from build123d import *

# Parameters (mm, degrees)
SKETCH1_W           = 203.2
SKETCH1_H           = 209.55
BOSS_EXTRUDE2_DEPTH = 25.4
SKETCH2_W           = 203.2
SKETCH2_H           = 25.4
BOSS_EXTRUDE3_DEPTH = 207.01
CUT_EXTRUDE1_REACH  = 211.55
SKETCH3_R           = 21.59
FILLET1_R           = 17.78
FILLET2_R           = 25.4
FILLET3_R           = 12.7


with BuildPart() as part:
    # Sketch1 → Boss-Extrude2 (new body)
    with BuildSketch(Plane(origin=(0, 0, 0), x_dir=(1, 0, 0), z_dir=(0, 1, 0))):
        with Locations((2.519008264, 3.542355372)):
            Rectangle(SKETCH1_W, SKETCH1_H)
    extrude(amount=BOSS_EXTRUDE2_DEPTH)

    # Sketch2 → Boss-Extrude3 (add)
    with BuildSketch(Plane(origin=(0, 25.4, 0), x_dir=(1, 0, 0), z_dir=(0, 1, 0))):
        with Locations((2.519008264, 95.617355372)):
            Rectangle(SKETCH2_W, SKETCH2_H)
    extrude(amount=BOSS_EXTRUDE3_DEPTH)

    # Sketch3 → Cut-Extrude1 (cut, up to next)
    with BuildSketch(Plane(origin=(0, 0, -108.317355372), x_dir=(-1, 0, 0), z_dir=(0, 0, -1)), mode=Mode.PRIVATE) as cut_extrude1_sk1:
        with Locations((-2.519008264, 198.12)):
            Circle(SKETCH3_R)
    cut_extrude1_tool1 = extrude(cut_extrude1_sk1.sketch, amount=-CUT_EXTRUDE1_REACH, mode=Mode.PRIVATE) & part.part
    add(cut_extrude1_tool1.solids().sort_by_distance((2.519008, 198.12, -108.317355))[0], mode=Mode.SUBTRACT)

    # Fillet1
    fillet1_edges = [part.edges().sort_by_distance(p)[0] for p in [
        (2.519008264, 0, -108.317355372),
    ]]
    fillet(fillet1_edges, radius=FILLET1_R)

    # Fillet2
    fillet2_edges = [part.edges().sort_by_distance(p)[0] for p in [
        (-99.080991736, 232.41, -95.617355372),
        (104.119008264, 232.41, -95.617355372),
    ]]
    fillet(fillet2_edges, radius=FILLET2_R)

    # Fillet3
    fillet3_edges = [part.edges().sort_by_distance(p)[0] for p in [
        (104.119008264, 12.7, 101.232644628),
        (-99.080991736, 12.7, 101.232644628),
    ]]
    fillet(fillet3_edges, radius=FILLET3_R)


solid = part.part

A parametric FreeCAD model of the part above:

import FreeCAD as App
import Part
import Sketcher

V = App.Vector
Q = App.Units.Quantity


def edges_at(feature, points):
    """Names of the edges that pass closest to the given points."""
    edges = feature.Shape.Edges
    near = lambda p: min(range(len(edges)), key=lambda i: edges[i].distToShape(Part.Vertex(*p))[0])
    return sorted({f"Edge{near(p) + 1}" for p in points})

doc = App.newDocument("Part")
body = doc.addObject("PartDesign::Body", "Body")

sketch1 = body.newObject("Sketcher::SketchObject", "Sketch")
sketch1.AttachmentSupport = (doc.getObject("XZ_Plane"), [""])
sketch1.MapMode = "FlatFace"
sketch1.addGeometry(Part.LineSegment(V(-99.080992, -108.317355, 0), V(-99.080992, 101.232645, 0)), False)
sketch1.addGeometry(Part.LineSegment(V(-99.080992, 101.232645, 0), V(104.119008, 101.232645, 0)), False)
sketch1.addGeometry(Part.LineSegment(V(104.119008, 101.232645, 0), V(104.119008, -108.317355, 0)), False)
sketch1.addGeometry(Part.LineSegment(V(104.119008, -108.317355, 0), V(-99.080992, -108.317355, 0)), False)
sketch1.addConstraint(Sketcher.Constraint("Coincident", 0, 2, 1, 1))
sketch1.addConstraint(Sketcher.Constraint("Coincident", 1, 2, 2, 1))
sketch1.addConstraint(Sketcher.Constraint("Coincident", 2, 2, 3, 1))
sketch1.addConstraint(Sketcher.Constraint("Coincident", 3, 2, 0, 1))
sketch1.addConstraint(Sketcher.Constraint("Vertical", 0))
sketch1.addConstraint(Sketcher.Constraint("Horizontal", 1))
sketch1.addConstraint(Sketcher.Constraint("Vertical", 2))
sketch1.addConstraint(Sketcher.Constraint("Horizontal", 3))
sketch1.addConstraint(Sketcher.Constraint("DistanceX", 1, 1, 1, 2, Q("8 in")))
sketch1.addConstraint(Sketcher.Constraint("DistanceY", 0, 1, 0, 2, Q("8.25 in")))
sketch1.addConstraint(Sketcher.Constraint("DistanceX", 0, 2, -1, 1, Q("99.080992 mm")))
sketch1.addConstraint(Sketcher.Constraint("DistanceY", -1, 1, 0, 2, Q("101.232645 mm")))
pad1 = body.newObject("PartDesign::Pad", "Pad")
pad1.Profile = sketch1
pad1.Length = Q("1 in")
pad1.Reversed = True

sketch2 = body.newObject("Sketcher::SketchObject", "Sketch001")
sketch2.AttachmentSupport = (doc.getObject("XZ_Plane"), [""])
sketch2.MapMode = "FlatFace"
sketch2.AttachmentOffset = App.Placement(V(0, 0, -1 * 25.4), App.Rotation())
sketch2.addGeometry(Part.LineSegment(V(-99.080992, -108.317355, 0), V(-99.080992, -82.917355, 0)), False)
sketch2.addGeometry(Part.LineSegment(V(-99.080992, -82.917355, 0), V(104.119008, -82.917355, 0)), False)
sketch2.addGeometry(Part.LineSegment(V(104.119008, -82.917355, 0), V(104.119008, -108.317355, 0)), False)
sketch2.addGeometry(Part.LineSegment(V(104.119008, -108.317355, 0), V(-99.080992, -108.317355, 0)), False)
sketch2.addConstraint(Sketcher.Constraint("Coincident", 0, 2, 1, 1))
sketch2.addConstraint(Sketcher.Constraint("Coincident", 1, 2, 2, 1))
sketch2.addConstraint(Sketcher.Constraint("Coincident", 2, 2, 3, 1))
sketch2.addConstraint(Sketcher.Constraint("Coincident", 3, 2, 0, 1))
sketch2.addConstraint(Sketcher.Constraint("Vertical", 0))
sketch2.addConstraint(Sketcher.Constraint("Horizontal", 1))
sketch2.addConstraint(Sketcher.Constraint("Vertical", 2))
sketch2.addConstraint(Sketcher.Constraint("Horizontal", 3))
sketch2.addConstraint(Sketcher.Constraint("DistanceX", 1, 1, 1, 2, Q("8 in")))
sketch2.addConstraint(Sketcher.Constraint("DistanceY", 0, 1, 0, 2, Q("1 in")))
sketch2.addConstraint(Sketcher.Constraint("DistanceX", 0, 2, -1, 1, Q("99.080992 mm")))
sketch2.addConstraint(Sketcher.Constraint("DistanceY", 0, 2, -1, 1, Q("82.917355 mm")))
pad2 = body.newObject("PartDesign::Pad", "Pad001")
pad2.Profile = sketch2
pad2.Length = Q("8.15 in")
pad2.Reversed = True

sketch3 = body.newObject("Sketcher::SketchObject", "Sketch002")
sketch3.AttachmentSupport = (doc.getObject("XY_Plane"), [""])
sketch3.MapMode = "FlatFace"
sketch3.AttachmentOffset = App.Placement(V(0, 0, -108.317355), App.Rotation())
sketch3.addGeometry(Part.Circle(V(2.519008, 198.12, 0), V(0, 0, 1), 21.59), False)
sketch3.addConstraint(Sketcher.Constraint("Diameter", 0, Q("1.7 in")))
sketch3.addConstraint(Sketcher.Constraint("DistanceY", -1, 1, 0, 3, Q("7.8 in")))
sketch3.addConstraint(Sketcher.Constraint("DistanceX", -1, 1, 0, 3, Q("2.519008 mm")))
pocket1 = body.newObject("PartDesign::Pocket", "Pocket")
pocket1.Profile = sketch3
pocket1.Type = "UpToFirst"
pocket1.Reversed = True
doc.recompute()

fillet = body.newObject("PartDesign::Fillet", "Fillet")
fillet.Base = (pocket1, edges_at(pocket1, [(2.519, 0, -108.317)]))
fillet.Radius = Q("0.7 in")
doc.recompute()

fillet2 = body.newObject("PartDesign::Fillet", "Fillet001")
fillet2.Base = (fillet, edges_at(fillet, [(-99.081, 232.41, -95.617), (104.119, 232.41, -95.617)]))
fillet2.Radius = Q("1 in")
doc.recompute()

fillet3 = body.newObject("PartDesign::Fillet", "Fillet002")
fillet3.Base = (fillet2, edges_at(fillet2, [(104.119, 12.7, 101.233), (-99.081, 12.7, 101.233)]))
fillet3.Radius = Q("0.5 in")

doc.recompute()
